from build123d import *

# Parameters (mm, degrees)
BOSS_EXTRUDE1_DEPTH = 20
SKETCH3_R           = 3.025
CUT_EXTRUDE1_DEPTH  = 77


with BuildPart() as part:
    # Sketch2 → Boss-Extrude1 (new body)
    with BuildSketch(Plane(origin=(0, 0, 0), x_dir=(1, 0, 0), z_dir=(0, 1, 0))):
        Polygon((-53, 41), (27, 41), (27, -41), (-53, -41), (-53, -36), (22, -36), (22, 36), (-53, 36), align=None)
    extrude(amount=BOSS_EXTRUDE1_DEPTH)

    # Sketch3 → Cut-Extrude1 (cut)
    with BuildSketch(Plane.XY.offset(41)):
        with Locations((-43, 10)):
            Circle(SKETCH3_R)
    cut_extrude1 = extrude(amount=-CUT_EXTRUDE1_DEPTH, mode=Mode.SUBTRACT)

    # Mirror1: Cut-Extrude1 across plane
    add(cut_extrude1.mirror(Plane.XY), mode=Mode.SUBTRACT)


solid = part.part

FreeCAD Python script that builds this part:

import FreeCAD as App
import Part
import Sketcher

doc = App.newDocument("Part")
body = doc.addObject("PartDesign::Body", "Body")

# Sketch on XZ plane
sketch1 = body.newObject("Sketcher::SketchObject", "Sketch")
sketch1.AttachmentSupport = (doc.getObject("XZ_Plane"), [""])
sketch1.MapMode = "FlatFace"
sketch1.addGeometry([
    Part.LineSegment(App.Vector(27, -41, 0), App.Vector(-53, -41, 0)),  # 0
    Part.LineSegment(App.Vector(-53, -41, 0), App.Vector(-53, -36, 0)),  # 1
    Part.LineSegment(App.Vector(-53, -36, 0), App.Vector(22, -36, 0)),  # 2
    Part.LineSegment(App.Vector(22, -36, 0), App.Vector(22, 36, 0)),  # 3
    Part.LineSegment(App.Vector(22, 36, 0), App.Vector(-53, 36, 0)),  # 4
    Part.LineSegment(App.Vector(-53, 36, 0), App.Vector(-53, 41, 0)),  # 5
    Part.LineSegment(App.Vector(-53, 41, 0), App.Vector(27, 41, 0)),  # 6
    Part.LineSegment(App.Vector(27, 41, 0), App.Vector(27, -41, 0)),  # 7
], False)
sketch1.addConstraint([
    Sketcher.Constraint("Coincident", 0, 2, 1, 1),
    Sketcher.Constraint("Coincident", 1, 2, 2, 1),
    Sketcher.Constraint("Coincident", 2, 2, 3, 1),
    Sketcher.Constraint("Coincident", 3, 2, 4, 1),
    Sketcher.Constraint("Coincident", 4, 2, 5, 1),
    Sketcher.Constraint("Coincident", 5, 2, 6, 1),
    Sketcher.Constraint("Coincident", 6, 2, 7, 1),
    Sketcher.Constraint("Coincident", 7, 2, 0, 1),
    Sketcher.Constraint("Horizontal", 0),
    Sketcher.Constraint("Vertical", 1),
    Sketcher.Constraint("Horizontal", 2),
    Sketcher.Constraint("Vertical", 3),
    Sketcher.Constraint("Horizontal", 4),
    Sketcher.Constraint("Vertical", 5),
    Sketcher.Constraint("Horizontal", 6),
    Sketcher.Constraint("Vertical", 7),
    Sketcher.Constraint("Symmetric", 1, 2, 4, 2, -1),
    Sketcher.Constraint("Equal", 1, 5),
    Sketcher.Constraint("DistanceX", 0, 2, 0, 1, 80.0),
    Sketcher.Constraint("DistanceX", 2, 1, 2, 2, 75.0),
    Sketcher.Constraint("DistanceY", 1, 1, 1, 2, 5.0),
    Sketcher.Constraint("DistanceY", 3, 1, 3, 2, 72.0),
    Sketcher.Constraint("DistanceX", 0, 2, -1, 1, 53.0),
])
pad1 = body.newObject("PartDesign::Pad", "Pad")
pad1.Profile = sketch1
pad1.Length = 20
pad1.Reversed = True

# Sketch on XY plane
sketch2 = body.newObject("Sketcher::SketchObject", "Sketch001")
sketch2.AttachmentSupport = (doc.getObject("XY_Plane"), [""])
sketch2.MapMode = "FlatFace"
sketch2.AttachmentOffset = App.Placement(App.Vector(0, 0, 41), App.Rotation())
sketch2.addGeometry(Part.Circle(App.Vector(-43, 10, 0), App.Vector(0, 0, 1), 3), False)
sketch2.addConstraint([
    Sketcher.Constraint("Diameter", 0, 6.05),
    Sketcher.Constraint("DistanceX", 0, 3, -1, 1, 43.0),
    Sketcher.Constraint("DistanceY", -1, 1, 0, 3, 10.0),
])
pocket1 = body.newObject("PartDesign::Pocket", "Pocket")
pocket1.Profile = sketch2
pocket1.Length = 77
doc.recompute()

mirrored = body.newObject("PartDesign::Mirrored", "Mirrored")
mirrored.Originals = [pocket1]
mirrored.MirrorPlane = (doc.getObject("XY_Plane"), [""])
body.Tip = mirrored

doc.recompute()
